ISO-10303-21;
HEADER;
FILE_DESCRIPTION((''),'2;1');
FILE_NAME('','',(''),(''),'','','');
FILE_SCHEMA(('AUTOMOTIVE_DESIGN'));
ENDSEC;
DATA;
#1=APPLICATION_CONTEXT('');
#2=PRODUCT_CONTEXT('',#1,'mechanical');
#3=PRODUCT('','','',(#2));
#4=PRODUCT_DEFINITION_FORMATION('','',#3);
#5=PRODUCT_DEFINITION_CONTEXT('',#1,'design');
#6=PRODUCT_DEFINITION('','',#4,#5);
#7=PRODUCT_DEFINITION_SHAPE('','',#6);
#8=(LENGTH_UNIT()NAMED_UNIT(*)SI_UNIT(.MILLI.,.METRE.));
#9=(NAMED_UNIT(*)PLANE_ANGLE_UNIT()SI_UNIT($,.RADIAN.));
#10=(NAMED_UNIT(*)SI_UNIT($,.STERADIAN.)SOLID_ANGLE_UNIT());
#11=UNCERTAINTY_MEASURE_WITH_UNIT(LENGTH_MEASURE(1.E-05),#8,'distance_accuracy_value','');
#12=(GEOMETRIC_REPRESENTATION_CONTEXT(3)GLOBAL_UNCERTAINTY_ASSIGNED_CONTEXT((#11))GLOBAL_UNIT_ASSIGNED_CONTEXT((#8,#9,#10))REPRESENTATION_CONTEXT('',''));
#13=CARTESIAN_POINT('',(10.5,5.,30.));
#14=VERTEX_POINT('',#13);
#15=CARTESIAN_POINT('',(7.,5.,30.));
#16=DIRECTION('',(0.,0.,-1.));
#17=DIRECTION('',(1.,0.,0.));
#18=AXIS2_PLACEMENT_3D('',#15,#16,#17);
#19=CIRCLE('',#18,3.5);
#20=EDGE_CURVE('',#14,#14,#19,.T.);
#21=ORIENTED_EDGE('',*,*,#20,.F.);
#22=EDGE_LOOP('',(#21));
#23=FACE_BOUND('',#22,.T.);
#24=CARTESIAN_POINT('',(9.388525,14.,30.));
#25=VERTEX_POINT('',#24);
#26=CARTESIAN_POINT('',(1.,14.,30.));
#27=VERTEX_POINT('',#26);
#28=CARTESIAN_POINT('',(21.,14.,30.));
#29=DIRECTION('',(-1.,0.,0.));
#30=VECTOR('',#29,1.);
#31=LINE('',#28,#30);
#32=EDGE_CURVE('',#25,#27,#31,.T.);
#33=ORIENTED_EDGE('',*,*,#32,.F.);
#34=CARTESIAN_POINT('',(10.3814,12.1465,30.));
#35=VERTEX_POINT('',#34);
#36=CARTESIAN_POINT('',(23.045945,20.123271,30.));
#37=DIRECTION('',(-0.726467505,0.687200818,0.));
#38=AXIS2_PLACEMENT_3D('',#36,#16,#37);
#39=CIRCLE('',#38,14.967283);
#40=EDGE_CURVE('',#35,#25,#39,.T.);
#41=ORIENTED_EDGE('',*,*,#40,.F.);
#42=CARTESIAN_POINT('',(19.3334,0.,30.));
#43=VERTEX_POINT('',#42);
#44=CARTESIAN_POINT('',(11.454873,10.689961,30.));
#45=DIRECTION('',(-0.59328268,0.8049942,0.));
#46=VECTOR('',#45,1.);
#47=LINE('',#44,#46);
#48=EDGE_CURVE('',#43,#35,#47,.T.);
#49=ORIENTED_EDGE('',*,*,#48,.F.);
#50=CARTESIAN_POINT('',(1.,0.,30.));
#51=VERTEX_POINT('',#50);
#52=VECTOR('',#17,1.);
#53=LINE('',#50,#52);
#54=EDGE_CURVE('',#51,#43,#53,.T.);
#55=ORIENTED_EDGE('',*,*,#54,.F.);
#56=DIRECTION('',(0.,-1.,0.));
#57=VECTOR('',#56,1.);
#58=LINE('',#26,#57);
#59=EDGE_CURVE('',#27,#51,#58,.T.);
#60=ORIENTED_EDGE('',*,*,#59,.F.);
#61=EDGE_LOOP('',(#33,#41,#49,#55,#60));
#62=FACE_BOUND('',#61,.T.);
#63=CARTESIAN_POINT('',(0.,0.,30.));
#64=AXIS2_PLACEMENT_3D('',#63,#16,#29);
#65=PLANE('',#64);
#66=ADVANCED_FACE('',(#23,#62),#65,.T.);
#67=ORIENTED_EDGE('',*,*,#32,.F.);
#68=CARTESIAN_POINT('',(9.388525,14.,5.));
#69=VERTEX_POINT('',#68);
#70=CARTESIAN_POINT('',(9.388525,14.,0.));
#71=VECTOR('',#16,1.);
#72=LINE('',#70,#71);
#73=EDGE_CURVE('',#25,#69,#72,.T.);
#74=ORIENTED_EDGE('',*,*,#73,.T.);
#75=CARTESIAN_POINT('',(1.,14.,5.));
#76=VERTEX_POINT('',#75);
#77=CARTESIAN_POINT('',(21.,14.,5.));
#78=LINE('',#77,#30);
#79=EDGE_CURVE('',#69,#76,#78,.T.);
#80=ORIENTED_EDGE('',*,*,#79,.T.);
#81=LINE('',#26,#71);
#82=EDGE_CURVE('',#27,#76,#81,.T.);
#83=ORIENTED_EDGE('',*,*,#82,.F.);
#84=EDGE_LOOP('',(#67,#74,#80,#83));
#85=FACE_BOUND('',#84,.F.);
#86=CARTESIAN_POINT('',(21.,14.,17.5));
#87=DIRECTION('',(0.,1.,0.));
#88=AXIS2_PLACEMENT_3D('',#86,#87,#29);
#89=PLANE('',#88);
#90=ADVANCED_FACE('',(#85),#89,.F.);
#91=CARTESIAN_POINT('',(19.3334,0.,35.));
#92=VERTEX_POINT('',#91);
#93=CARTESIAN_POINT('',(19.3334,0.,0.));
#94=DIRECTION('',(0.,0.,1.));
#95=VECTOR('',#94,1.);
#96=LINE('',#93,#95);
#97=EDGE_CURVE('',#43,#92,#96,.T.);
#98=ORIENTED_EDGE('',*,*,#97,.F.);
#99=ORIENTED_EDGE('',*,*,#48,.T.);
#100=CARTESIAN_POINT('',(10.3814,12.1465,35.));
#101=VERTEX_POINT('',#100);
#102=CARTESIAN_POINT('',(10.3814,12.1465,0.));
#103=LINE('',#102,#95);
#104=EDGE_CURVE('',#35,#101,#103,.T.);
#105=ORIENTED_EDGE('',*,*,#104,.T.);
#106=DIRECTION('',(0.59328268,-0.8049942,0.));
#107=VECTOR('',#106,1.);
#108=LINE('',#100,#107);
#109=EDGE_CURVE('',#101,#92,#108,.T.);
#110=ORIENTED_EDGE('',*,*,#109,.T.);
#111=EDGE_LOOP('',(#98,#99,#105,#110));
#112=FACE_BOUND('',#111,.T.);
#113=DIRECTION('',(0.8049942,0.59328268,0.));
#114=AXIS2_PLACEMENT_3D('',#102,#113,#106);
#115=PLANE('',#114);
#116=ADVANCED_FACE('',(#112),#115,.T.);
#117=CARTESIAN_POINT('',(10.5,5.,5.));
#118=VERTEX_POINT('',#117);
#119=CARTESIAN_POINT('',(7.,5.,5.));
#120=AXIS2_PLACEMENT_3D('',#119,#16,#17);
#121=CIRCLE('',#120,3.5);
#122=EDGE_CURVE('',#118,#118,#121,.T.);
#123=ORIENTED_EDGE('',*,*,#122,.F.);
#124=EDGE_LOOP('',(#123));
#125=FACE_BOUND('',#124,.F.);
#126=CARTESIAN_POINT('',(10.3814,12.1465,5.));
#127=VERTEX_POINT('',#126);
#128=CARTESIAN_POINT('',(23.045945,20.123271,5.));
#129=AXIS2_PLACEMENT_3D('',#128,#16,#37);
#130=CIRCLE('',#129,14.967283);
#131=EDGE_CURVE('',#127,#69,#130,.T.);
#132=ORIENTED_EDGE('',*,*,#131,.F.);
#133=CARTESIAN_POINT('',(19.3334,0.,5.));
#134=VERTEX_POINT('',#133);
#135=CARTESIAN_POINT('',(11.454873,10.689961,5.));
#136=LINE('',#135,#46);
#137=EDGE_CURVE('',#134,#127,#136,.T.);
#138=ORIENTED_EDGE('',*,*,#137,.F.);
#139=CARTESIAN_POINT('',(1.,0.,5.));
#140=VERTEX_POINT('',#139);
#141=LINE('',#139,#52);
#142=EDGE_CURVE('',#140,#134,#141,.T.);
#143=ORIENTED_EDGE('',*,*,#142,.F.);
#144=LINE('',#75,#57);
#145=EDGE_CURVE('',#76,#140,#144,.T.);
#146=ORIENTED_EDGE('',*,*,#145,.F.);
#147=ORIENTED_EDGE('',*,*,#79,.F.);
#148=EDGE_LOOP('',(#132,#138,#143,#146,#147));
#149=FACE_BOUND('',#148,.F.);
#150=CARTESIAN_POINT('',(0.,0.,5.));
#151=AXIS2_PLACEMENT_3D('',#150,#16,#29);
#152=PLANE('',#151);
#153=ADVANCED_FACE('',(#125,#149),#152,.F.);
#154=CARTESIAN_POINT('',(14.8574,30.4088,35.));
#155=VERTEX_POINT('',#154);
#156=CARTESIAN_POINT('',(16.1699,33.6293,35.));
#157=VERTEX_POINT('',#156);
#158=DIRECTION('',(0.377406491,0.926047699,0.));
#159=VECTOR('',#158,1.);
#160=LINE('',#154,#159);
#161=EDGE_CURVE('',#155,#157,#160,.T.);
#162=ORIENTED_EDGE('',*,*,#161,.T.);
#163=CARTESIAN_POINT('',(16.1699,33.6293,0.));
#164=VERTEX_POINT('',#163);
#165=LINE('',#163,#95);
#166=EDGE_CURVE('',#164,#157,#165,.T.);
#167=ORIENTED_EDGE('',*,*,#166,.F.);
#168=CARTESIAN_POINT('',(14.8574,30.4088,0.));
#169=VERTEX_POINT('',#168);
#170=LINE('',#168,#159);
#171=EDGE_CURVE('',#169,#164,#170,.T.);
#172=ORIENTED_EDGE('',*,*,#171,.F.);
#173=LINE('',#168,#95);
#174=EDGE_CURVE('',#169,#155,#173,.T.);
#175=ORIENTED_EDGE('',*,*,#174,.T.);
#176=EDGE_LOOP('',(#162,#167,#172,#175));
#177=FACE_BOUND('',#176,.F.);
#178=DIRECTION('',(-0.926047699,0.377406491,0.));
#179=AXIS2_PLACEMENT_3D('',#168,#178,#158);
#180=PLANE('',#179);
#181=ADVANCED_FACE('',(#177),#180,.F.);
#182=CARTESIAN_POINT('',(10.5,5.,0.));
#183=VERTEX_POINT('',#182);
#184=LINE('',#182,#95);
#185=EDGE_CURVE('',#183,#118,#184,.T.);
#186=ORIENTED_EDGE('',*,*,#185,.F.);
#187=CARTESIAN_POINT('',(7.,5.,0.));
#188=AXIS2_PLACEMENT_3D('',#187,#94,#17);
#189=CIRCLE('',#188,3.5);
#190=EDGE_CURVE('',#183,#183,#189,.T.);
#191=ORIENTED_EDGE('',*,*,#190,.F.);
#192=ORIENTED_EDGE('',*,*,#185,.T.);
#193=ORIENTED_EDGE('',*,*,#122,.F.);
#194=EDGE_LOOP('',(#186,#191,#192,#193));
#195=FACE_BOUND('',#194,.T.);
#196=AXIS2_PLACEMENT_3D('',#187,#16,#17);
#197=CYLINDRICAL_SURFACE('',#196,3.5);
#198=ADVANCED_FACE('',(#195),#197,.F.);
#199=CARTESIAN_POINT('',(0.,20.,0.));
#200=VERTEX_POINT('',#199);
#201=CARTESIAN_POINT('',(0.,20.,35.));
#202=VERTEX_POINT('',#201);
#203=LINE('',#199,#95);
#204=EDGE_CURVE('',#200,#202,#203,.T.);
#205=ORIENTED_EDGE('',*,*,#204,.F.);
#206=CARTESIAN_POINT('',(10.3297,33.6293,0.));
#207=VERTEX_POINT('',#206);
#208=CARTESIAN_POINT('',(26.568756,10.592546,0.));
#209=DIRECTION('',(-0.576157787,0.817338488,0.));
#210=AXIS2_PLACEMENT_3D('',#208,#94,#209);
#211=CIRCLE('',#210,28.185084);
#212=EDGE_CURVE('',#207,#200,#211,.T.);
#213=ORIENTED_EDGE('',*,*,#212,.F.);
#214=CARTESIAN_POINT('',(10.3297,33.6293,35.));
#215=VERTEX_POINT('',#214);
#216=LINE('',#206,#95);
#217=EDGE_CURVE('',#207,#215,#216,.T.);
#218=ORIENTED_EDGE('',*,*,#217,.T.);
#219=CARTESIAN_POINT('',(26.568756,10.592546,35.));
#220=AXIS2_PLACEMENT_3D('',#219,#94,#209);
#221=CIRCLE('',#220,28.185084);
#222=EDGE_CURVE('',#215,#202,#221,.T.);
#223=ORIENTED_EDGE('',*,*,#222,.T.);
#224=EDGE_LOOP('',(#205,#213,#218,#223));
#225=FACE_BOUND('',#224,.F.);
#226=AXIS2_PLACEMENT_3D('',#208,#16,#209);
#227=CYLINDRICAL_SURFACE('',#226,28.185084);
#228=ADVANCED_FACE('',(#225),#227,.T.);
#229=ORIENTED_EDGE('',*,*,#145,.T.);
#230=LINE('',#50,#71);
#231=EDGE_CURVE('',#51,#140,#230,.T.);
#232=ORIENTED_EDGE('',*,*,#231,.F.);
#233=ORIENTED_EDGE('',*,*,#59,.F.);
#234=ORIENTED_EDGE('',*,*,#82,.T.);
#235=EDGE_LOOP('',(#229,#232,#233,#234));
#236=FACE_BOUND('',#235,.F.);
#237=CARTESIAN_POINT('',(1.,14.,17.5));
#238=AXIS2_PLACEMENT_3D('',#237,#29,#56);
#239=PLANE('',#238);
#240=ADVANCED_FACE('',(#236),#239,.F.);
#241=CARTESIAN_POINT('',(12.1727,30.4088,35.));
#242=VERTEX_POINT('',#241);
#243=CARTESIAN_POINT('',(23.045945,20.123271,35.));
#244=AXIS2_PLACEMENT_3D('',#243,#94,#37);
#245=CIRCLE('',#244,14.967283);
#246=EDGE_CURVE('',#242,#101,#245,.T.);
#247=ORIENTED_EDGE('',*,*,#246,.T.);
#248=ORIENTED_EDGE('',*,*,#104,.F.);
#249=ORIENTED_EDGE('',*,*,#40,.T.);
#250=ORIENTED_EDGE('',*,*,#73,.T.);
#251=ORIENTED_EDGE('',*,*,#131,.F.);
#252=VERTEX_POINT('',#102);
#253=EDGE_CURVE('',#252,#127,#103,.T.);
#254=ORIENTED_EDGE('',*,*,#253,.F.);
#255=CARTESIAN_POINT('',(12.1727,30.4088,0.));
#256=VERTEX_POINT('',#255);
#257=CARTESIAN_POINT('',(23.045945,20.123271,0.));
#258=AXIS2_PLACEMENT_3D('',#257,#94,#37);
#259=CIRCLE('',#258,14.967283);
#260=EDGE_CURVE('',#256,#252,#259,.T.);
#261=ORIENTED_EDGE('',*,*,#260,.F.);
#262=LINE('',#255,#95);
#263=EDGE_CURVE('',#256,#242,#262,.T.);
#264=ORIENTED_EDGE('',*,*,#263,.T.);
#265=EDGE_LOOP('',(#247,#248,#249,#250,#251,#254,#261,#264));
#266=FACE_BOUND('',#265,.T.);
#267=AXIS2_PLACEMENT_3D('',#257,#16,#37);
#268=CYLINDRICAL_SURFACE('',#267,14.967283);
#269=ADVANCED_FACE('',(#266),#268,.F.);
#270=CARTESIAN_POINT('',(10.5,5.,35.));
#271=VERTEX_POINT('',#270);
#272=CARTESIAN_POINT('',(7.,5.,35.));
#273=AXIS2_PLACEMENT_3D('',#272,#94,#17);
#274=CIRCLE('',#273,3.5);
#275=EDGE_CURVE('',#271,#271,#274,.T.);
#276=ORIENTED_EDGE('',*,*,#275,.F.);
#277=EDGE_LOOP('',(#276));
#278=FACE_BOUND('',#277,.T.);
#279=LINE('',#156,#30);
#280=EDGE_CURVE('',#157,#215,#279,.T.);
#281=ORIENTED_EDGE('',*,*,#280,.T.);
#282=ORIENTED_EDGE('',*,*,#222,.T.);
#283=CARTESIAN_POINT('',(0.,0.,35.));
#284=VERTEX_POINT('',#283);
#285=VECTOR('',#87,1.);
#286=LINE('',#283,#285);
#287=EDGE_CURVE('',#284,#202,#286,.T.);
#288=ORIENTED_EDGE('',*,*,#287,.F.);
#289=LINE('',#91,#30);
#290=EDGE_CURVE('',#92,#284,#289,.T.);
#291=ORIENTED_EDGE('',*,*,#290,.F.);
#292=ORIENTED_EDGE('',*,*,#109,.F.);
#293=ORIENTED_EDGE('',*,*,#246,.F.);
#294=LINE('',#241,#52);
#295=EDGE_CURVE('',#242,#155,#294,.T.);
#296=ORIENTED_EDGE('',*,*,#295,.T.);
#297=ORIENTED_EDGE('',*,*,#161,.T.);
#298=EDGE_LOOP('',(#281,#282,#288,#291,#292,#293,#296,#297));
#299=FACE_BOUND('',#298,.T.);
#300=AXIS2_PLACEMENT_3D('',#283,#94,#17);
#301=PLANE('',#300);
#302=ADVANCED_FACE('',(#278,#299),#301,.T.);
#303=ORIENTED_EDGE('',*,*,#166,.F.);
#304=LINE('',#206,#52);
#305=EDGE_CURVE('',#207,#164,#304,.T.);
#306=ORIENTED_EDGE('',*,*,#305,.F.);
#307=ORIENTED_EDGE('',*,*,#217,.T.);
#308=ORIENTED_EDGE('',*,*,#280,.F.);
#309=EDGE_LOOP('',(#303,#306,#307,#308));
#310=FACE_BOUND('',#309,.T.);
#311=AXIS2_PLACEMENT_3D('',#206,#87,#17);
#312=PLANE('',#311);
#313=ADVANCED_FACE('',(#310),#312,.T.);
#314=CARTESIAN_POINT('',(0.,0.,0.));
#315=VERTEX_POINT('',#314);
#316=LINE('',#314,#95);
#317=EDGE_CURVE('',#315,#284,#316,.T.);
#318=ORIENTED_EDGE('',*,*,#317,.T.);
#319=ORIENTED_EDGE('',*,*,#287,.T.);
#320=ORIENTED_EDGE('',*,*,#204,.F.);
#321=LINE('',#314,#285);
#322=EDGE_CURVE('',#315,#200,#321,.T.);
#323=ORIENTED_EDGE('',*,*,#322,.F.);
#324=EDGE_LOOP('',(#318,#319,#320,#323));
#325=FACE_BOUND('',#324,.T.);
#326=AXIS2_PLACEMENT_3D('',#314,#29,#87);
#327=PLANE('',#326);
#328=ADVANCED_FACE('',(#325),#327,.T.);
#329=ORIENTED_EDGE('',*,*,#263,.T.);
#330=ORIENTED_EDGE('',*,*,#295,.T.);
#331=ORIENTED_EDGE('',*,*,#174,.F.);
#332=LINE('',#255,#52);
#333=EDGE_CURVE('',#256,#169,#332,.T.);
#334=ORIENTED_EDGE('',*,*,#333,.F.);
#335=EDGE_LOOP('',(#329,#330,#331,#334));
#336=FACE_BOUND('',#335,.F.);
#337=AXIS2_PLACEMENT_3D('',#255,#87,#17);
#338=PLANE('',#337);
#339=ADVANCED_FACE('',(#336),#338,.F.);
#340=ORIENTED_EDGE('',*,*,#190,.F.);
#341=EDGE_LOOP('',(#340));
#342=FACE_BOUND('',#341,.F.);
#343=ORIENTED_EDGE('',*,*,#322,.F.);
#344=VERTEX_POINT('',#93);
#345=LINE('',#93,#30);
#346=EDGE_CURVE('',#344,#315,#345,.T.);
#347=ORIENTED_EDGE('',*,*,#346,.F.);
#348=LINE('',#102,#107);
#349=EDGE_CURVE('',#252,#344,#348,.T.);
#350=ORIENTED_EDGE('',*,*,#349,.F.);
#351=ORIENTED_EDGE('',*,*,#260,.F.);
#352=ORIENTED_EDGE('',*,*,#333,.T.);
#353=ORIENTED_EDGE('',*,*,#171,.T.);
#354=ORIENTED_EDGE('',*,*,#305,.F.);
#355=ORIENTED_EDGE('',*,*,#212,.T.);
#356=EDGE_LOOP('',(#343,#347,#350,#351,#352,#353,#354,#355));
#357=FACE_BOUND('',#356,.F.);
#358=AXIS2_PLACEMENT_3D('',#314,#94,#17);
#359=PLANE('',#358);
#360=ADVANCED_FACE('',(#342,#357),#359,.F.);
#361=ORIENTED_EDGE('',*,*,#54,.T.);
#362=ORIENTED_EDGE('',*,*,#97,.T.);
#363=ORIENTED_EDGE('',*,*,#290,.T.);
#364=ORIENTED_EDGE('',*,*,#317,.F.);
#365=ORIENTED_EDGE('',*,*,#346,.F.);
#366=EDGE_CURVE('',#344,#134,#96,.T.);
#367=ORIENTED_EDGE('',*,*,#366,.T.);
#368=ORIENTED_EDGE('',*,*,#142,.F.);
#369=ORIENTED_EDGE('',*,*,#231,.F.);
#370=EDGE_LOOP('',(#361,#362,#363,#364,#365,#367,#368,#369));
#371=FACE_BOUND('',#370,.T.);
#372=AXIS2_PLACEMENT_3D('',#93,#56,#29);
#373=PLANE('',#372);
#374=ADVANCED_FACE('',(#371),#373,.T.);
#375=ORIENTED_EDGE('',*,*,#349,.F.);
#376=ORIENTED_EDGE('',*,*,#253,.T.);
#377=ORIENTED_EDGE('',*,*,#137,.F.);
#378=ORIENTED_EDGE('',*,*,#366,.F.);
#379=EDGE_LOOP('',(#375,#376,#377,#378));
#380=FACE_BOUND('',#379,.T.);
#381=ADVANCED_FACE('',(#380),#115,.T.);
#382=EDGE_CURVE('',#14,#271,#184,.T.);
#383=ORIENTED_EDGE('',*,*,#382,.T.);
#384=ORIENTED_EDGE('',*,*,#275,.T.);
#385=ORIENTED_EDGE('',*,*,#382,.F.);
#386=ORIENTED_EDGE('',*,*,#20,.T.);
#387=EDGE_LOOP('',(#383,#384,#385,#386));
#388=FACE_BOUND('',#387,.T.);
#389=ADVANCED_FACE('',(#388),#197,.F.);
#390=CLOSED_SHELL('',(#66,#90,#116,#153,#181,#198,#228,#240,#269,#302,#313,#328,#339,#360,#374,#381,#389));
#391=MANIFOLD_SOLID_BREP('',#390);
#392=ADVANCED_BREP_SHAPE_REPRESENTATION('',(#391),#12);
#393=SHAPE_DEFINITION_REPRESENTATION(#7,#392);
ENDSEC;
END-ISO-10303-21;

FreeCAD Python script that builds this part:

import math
import FreeCAD as App
import Part
import Sketcher
from FreeCAD import Vector
Q = App.Units.Quantity


def add_polygon(sketch, points):
    """Adds a closed chain of lines whose ends are joined by coincident constraints."""
    first, n = sketch.GeometryCount, len(points)
    for a, b in zip(points, points[1:] + points[:1]):
        sketch.addGeometry(Part.LineSegment(App.Vector(*a, 0), App.Vector(*b, 0)), False)
    for i in range(n):
        sketch.addConstraint(Sketcher.Constraint("Coincident", first + i, 2, first + (i + 1) % n, 1))

doc = App.newDocument("Part")
body = doc.addObject("PartDesign::Body", "Body")

# Sketch on XY plane
sketch1 = doc.addObject("Sketcher::SketchObject", "Sketch")
body.addObject(sketch1)
sketch1.AttachmentSupport = (doc.XY_Plane, [""])
sketch1.MapMode = "FlatFace"
sketch1.addGeometry([
    Part.LineSegment(Vector(0, 20, 0), Vector(0, 0, 0)),  # 0
    Part.LineSegment(Vector(0, 0, 0), Vector(19.3, 0, 0)),  # 1
    Part.LineSegment(Vector(19.3, 0, 0), Vector(10.4, 12.1, 0)),  # 2
    Part.ArcOfCircle(Part.Circle(Vector(23, 20.1, 0), Vector(0, 0, 1), 15), math.radians(137), math.radians(212)),  # 3
    Part.LineSegment(Vector(12.2, 30.4, 0), Vector(14.9, 30.4, 0)),  # 4
    Part.LineSegment(Vector(14.9, 30.4, 0), Vector(16.2, 33.6, 0)),  # 5
    Part.LineSegment(Vector(16.2, 33.6, 0), Vector(10.3, 33.6, 0)),  # 6
    Part.ArcOfCircle(Part.Circle(Vector(26.6, 10.6, 0), Vector(0, 0, 1), 28.2), math.radians(125), math.radians(161)),  # 7
    Part.Circle(Vector(7, 5, 0), Vector(0, 0, 1), 3.5),  # 8
], False)
sketch1.addConstraint([
    Sketcher.Constraint("Coincident", 0, 2, 1, 1),
    Sketcher.Constraint("Coincident", 1, 2, 2, 1),
    Sketcher.Constraint("Coincident", 2, 2, 3, 2),
    Sketcher.Constraint("Coincident", 3, 1, 4, 1),
    Sketcher.Constraint("Coincident", 4, 2, 5, 1),
    Sketcher.Constraint("Coincident", 5, 2, 6, 1),
    Sketcher.Constraint("Coincident", 6, 2, 7, 1),
    Sketcher.Constraint("Coincident", 7, 2, 0, 1),
    Sketcher.Constraint("Vertical", 0),
    Sketcher.Constraint("Horizontal", 1),
    Sketcher.Constraint("Horizontal", 4),
    Sketcher.Constraint("Horizontal", 6),
    Sketcher.Constraint("Coincident", 0, 2, -1, 1),
    Sketcher.Constraint("Diameter", 8, 7.0),
    Sketcher.Constraint("DistanceY", 0, 2, 0, 1, 20.0),
    Sketcher.Constraint("DistanceX", -1, 1, 8, 3, 7.0),
    Sketcher.Constraint("DistanceY", -1, 1, 8, 3, 5.0),
    Sketcher.Constraint("Radius", 3, 14.9674),
    Sketcher.Constraint("Radius", 7, 28.1851),
    Sketcher.Constraint("Angle", 2, Q("126.3903 deg")),
    Sketcher.Constraint("DistanceY", 3, 3, 3, 1, 10.2856),
    Sketcher.Constraint("DistanceY", 4, 2, 5, 2, 3.2205),
    Sketcher.Constraint("DistanceX", -1, 1, 5, 2, 16.17),
    Sketcher.Constraint("Distance", 2, 15.089),
    Sketcher.Constraint("DistanceX", 1, 1, 1, 2, 19.3334),
    Sketcher.Constraint("DistanceX", 4, 1, 4, 2, 2.6847),
    Sketcher.Constraint("DistanceX", 6, 2, 6, 1, 5.8402),
    Sketcher.Constraint("DistanceX", -1, 1, 3, 3, 23.046),
])
pad1 = doc.addObject("PartDesign::Pad", "Pad")
body.addObject(pad1)
pad1.Profile = sketch1
pad1.Length = 35

# Sketch on XY plane
sketch2 = doc.addObject("Sketcher::SketchObject", "Sketch001")
body.addObject(sketch2)
sketch2.AttachmentSupport = (doc.XY_Plane, [""])
sketch2.MapMode = "FlatFace"
sketch2.AttachmentOffset = App.Placement(Vector(0, 0, 17.5), App.Rotation())
add_polygon(sketch2, [(21, 0), (1, 0), (1, 14), (21, 14)])  # lines 0-3
sketch2.addConstraint([
    Sketcher.Constraint("Horizontal", 0),
    Sketcher.Constraint("Vertical", 1),
    Sketcher.Constraint("Horizontal", 2),
    Sketcher.Constraint("Vertical", 3),
    Sketcher.Constraint("PointOnObject", 0, 2, -1),
    Sketcher.Constraint("DistanceX", 0, 2, 0, 1, 20.0),
    Sketcher.Constraint("DistanceY", 1, 1, 1, 2, 14.0),
    Sketcher.Constraint("DistanceX", -1, 1, 0, 2, 1.0),
])
pocket1 = doc.addObject("PartDesign::Pocket", "Pocket")
body.addObject(pocket1)
pocket1.Profile = sketch2
pocket1.Length = 25
pocket1.Midplane = True

doc.recompute()
